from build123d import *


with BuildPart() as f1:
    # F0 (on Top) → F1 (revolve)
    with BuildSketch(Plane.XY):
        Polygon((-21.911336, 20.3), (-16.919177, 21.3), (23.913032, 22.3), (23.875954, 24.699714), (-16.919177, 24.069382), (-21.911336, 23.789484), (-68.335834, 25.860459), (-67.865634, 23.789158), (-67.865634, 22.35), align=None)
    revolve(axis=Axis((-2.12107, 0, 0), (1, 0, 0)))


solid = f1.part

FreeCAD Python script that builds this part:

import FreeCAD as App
import Part
import Sketcher


def add_polygon(sketch, points):
    """Adds a closed chain of lines whose ends are joined by coincident constraints."""
    first, n = sketch.GeometryCount, len(points)
    for a, b in zip(points, points[1:] + points[:1]):
        sketch.addGeometry(Part.LineSegment(App.Vector(*a, 0), App.Vector(*b, 0)), False)
    for i in range(n):
        sketch.addConstraint(Sketcher.Constraint("Coincident", first + i, 2, first + (i + 1) % n, 1))

doc = App.newDocument("Part")
body = doc.addObject("PartDesign::Body", "Body")

# Sketch on XY plane
sketch1 = body.newObject("Sketcher::SketchObject", "Sketch")
sketch1.AttachmentSupport = (doc.getObject("XY_Plane"), [""])
sketch1.MapMode = "FlatFace"
add_polygon(sketch1, [(-21.911336, 20.3), (-16.919177, 21.3), (23.913032, 22.3), (23.875954, 24.699714), (-16.919177, 24.069382), (-21.911336, 23.789484), (-68.335834, 25.860459), (-67.865634, 23.789158), (-67.865634, 22.35)])  # lines 0-8
sketch1.addConstraint([
    Sketcher.Constraint("Vertical", 7),
    Sketcher.Constraint("Perpendicular", 2, 3),
    Sketcher.Constraint("Parallel", 5, 8),
    Sketcher.Constraint("Vertical", 0, 2, 3, 2),
    Sketcher.Constraint("Vertical", 4, 2, 8, 2),
    Sketcher.Constraint("Distance", 4, 4.999999),
    Sketcher.Constraint("Distance", 8, 46.0),
    Sketcher.Constraint("DistanceY", 0, 2, 1, 2, 1.0),
    Sketcher.Constraint("DistanceY", 8, 2, 0, 2, 1.0),
    Sketcher.Constraint("Distance", 2, 2.4),
    Sketcher.Constraint("Distance", 3, 40.8),
    Sketcher.Constraint("DistanceY", -1, 1, 0, 2, 21.3),
    Sketcher.Constraint("DistanceY", -1, 1, 7, 2, 22.35),
    Sketcher.Constraint("Distance", 6, 2.124),
    Sketcher.Constraint("DistanceX", 5, 2, 4, 2, 46.424498),
    Sketcher.Constraint("Distance", 0, 5.091331),
    Sketcher.Constraint("DistanceY", 7, 2, 7, 1, 1.439158),
    Sketcher.Constraint("DistanceX", 0, 2, -1, 1, 16.919177),
])
revolution = body.newObject("PartDesign::Revolution", "Revolution")
revolution.Profile = sketch1
revolution.ReferenceAxis = (sketch1, ["H_Axis"])
revolution.Angle = 360

doc.recompute()
